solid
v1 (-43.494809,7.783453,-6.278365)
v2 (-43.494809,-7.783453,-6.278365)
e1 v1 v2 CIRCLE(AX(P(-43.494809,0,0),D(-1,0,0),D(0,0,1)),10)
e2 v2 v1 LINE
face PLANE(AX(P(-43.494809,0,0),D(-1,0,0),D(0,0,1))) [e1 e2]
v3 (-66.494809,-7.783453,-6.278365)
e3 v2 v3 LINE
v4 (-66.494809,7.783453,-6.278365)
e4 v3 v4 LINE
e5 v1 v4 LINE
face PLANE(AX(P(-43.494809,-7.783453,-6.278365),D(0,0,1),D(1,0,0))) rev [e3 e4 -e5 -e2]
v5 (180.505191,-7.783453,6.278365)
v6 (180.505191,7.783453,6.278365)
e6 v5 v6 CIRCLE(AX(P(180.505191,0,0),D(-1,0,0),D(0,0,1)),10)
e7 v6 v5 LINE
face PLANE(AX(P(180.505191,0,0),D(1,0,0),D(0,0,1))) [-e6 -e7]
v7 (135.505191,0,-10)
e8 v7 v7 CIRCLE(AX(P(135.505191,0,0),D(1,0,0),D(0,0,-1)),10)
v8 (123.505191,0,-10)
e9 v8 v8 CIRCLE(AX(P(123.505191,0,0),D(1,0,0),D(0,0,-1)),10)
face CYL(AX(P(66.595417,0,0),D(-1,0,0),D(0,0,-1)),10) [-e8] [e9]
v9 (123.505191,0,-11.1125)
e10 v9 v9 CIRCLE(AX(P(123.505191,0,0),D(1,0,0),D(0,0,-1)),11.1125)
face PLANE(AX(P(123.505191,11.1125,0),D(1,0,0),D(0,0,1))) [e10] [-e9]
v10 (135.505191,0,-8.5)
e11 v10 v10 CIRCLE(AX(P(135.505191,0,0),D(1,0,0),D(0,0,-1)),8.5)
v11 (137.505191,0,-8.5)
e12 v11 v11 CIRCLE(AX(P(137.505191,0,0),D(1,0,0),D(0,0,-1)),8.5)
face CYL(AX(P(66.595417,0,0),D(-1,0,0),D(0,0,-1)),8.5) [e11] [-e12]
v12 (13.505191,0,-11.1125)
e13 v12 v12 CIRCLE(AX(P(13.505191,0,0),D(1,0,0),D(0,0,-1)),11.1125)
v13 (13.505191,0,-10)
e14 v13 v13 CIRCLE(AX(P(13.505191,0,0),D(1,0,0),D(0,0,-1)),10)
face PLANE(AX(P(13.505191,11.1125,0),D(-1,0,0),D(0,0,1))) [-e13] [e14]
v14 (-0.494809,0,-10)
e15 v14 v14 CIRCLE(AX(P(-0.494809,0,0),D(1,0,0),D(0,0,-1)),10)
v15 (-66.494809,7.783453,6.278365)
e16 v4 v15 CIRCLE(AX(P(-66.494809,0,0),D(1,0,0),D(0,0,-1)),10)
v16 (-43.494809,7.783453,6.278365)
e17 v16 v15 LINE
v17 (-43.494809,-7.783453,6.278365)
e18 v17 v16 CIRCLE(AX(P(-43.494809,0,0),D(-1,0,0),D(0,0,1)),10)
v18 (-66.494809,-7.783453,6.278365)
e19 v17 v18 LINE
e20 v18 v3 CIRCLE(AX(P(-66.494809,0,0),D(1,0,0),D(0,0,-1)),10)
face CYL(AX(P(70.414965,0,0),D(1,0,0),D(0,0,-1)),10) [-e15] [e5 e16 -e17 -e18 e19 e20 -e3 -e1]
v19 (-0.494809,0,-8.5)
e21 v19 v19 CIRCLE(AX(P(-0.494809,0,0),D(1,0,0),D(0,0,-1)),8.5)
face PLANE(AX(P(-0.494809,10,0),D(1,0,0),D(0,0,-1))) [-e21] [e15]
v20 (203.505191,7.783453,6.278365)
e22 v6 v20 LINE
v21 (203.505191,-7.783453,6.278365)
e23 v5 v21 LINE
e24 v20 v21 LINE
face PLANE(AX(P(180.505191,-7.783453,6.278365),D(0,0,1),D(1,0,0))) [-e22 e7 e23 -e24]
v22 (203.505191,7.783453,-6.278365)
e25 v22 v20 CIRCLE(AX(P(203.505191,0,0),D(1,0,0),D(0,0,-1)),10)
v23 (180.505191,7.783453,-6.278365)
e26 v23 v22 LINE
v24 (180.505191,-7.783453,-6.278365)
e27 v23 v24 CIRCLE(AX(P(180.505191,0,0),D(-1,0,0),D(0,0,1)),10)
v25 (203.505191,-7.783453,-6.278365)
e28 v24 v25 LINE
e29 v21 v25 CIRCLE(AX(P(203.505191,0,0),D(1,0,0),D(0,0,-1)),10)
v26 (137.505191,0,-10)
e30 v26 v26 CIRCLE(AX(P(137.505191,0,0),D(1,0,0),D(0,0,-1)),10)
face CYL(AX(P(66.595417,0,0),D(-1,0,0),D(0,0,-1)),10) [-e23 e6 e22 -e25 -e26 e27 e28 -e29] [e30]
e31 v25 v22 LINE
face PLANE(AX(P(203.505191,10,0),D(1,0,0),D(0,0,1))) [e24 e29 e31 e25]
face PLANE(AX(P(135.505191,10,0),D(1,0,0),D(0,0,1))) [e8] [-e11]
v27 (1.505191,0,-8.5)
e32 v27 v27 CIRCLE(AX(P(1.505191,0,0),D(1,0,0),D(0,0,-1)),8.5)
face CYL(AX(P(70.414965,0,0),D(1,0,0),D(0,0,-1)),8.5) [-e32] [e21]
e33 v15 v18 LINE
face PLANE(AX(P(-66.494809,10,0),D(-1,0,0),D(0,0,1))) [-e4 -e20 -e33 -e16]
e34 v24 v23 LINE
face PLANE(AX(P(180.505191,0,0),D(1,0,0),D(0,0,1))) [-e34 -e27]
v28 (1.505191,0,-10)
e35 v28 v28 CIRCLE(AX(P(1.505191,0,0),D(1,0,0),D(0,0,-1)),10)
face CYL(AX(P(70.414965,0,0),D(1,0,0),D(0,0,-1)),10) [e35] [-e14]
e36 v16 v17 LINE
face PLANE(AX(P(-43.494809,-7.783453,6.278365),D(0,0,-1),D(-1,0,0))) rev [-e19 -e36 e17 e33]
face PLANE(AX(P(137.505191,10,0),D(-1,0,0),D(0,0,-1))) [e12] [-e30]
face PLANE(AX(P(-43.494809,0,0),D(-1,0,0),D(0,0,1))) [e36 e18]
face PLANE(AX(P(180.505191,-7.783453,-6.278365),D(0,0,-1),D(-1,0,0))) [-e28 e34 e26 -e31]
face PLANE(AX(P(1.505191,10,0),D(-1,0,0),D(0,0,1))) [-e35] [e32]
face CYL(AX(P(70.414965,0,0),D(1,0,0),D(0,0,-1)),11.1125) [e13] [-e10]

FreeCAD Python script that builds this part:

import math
import FreeCAD as App
import Part
import Sketcher

V = App.Vector
Q = App.Units.Quantity


def add_polygon(sketch, points):
    """Adds a closed chain of lines whose ends are joined by coincident constraints."""
    first, n = sketch.GeometryCount, len(points)
    for a, b in zip(points, points[1:] + points[:1]):
        sketch.addGeometry(Part.LineSegment(App.Vector(*a, 0), App.Vector(*b, 0)), False)
    for i in range(n):
        sketch.addConstraint(Sketcher.Constraint("Coincident", first + i, 2, first + (i + 1) % n, 1))

doc = App.newDocument("Part")
body = doc.addObject("PartDesign::Body", "Body")

sketch1 = doc.addObject("Sketcher::SketchObject", "Sketch")
body.addObject(sketch1)
sketch1.AttachmentSupport = (doc.XY_Plane, [""])
sketch1.MapMode = "FlatFace"
add_polygon(sketch1, [(68.5, 11.1), (13.5, 11.1), (13.5, 10), (1.5, 10), (1.5, 8.5), (-0.5, 8.5), (-0.5, 10), (-66.5, 10), (-66.5, 0), (68.5, 0)])
sketch1.addConstraint(Sketcher.Constraint("Horizontal", 0))
sketch1.addConstraint(Sketcher.Constraint("Vertical", 1))
sketch1.addConstraint(Sketcher.Constraint("Horizontal", 2))
sketch1.addConstraint(Sketcher.Constraint("Vertical", 3))
sketch1.addConstraint(Sketcher.Constraint("Horizontal", 4))
sketch1.addConstraint(Sketcher.Constraint("Vertical", 5))
sketch1.addConstraint(Sketcher.Constraint("Horizontal", 6))
sketch1.addConstraint(Sketcher.Constraint("Vertical", 7))
sketch1.addConstraint(Sketcher.Constraint("Horizontal", 8))
sketch1.addConstraint(Sketcher.Constraint("Vertical", 9))
sketch1.addConstraint(Sketcher.Constraint("PointOnObject", 7, 2, -1))
sketch1.addConstraint(Sketcher.Constraint("Horizontal", 2, 2, 5, 2))
sketch1.addConstraint(Sketcher.Constraint("DistanceX", 0, 2, 0, 1, Q("55 mm")))
sketch1.addConstraint(Sketcher.Constraint("DistanceX", 2, 2, 2, 1, Q("12 mm")))
sketch1.addConstraint(Sketcher.Constraint("DistanceX", 4, 2, 4, 1, Q("2 mm")))
sketch1.addConstraint(Sketcher.Constraint("DistanceX", 6, 2, 6, 1, Q("66 mm")))
sketch1.addConstraint(Sketcher.Constraint("DistanceY", 7, 2, 7, 1, Q("10 mm")))
sketch1.addConstraint(Sketcher.Constraint("DistanceY", 3, 2, 3, 1, Q("1.5 mm")))
sketch1.addConstraint(Sketcher.Constraint("DistanceY", 1, 2, 1, 1, Q("1.1125 mm")))
sketch1.addConstraint(Sketcher.Constraint("DistanceX", -1, 1, 0, 2, Q("13.505191 mm")))
revolution = doc.addObject("PartDesign::Revolution", "Revolution")
body.addObject(revolution)
revolution.Profile = sketch1
revolution.ReferenceAxis = (sketch1, ["H_Axis"])
revolution.Angle = 360

sketch2 = doc.addObject("Sketcher::SketchObject", "Sketch001")
body.addObject(sketch2)
sketch2.AttachmentSupport = (doc.YZ_Plane, [""])
sketch2.MapMode = "FlatFace"
sketch2.AttachmentOffset = App.Placement(V(0, 0, -43.494809), App.Rotation())
sketch2.addGeometry(Part.LineSegment(V(-8, -6, 0), V(8, -6, 0)), False)
sketch2.addGeometry(Part.ArcOfCircle(Part.Circle(V(0, 0, 0), V(0, 0, 1), 10), math.radians(-141), math.radians(-39)), False)
sketch2.addGeometry(Part.LineSegment(V(8, 6, 0), V(-8, 6, 0)), False)
sketch2.addGeometry(Part.ArcOfCircle(Part.Circle(V(0, 0, 0), V(0, 0, 1), 10), math.radians(39), math.radians(141)), False)
sketch2.addConstraint(Sketcher.Constraint("Coincident", 0, 1, 1, 1))
sketch2.addConstraint(Sketcher.Constraint("Coincident", 1, 2, 0, 2))
sketch2.addConstraint(Sketcher.Constraint("Coincident", 2, 1, 3, 1))
sketch2.addConstraint(Sketcher.Constraint("Coincident", 3, 2, 2, 2))
sketch2.addConstraint(Sketcher.Constraint("Horizontal", 0))
sketch2.addConstraint(Sketcher.Constraint("Horizontal", 2))
sketch2.addConstraint(Sketcher.Constraint("Coincident", 1, 3, -1, 1))
sketch2.addConstraint(Sketcher.Constraint("Coincident", 3, 3, -1, 1))
sketch2.addConstraint(Sketcher.Constraint("Equal", 1, 3))
sketch2.addConstraint(Sketcher.Constraint("Vertical", 1, 2, 2, 1))
sketch2.addConstraint(Sketcher.Constraint("Radius", 1, Q("10 mm")))
sketch2.addConstraint(Sketcher.Constraint("DistanceX", 0, 1, 0, 2, Q("15.566905 mm")))
pocket1 = doc.addObject("PartDesign::Pocket", "Pocket")
body.addObject(pocket1)
pocket1.Profile = sketch2
pocket1.Length = 23
doc.recompute()

datumplane = doc.addObject("PartDesign::Plane", "DatumPlane")
body.addObject(datumplane)
datumplane.AttachmentSupport = (doc.YZ_Plane, [""])
datumplane.MapMode = "FlatFace"
datumplane.AttachmentOffset = App.Placement(V(0, 0, 68.505191), App.Rotation())
mirrored = doc.addObject("PartDesign::Mirrored", "Mirrored")
body.addObject(mirrored)
mirrored.Originals = [revolution, pocket1]
mirrored.MirrorPlane = (datumplane, [""])
body.Tip = mirrored

doc.recompute()
